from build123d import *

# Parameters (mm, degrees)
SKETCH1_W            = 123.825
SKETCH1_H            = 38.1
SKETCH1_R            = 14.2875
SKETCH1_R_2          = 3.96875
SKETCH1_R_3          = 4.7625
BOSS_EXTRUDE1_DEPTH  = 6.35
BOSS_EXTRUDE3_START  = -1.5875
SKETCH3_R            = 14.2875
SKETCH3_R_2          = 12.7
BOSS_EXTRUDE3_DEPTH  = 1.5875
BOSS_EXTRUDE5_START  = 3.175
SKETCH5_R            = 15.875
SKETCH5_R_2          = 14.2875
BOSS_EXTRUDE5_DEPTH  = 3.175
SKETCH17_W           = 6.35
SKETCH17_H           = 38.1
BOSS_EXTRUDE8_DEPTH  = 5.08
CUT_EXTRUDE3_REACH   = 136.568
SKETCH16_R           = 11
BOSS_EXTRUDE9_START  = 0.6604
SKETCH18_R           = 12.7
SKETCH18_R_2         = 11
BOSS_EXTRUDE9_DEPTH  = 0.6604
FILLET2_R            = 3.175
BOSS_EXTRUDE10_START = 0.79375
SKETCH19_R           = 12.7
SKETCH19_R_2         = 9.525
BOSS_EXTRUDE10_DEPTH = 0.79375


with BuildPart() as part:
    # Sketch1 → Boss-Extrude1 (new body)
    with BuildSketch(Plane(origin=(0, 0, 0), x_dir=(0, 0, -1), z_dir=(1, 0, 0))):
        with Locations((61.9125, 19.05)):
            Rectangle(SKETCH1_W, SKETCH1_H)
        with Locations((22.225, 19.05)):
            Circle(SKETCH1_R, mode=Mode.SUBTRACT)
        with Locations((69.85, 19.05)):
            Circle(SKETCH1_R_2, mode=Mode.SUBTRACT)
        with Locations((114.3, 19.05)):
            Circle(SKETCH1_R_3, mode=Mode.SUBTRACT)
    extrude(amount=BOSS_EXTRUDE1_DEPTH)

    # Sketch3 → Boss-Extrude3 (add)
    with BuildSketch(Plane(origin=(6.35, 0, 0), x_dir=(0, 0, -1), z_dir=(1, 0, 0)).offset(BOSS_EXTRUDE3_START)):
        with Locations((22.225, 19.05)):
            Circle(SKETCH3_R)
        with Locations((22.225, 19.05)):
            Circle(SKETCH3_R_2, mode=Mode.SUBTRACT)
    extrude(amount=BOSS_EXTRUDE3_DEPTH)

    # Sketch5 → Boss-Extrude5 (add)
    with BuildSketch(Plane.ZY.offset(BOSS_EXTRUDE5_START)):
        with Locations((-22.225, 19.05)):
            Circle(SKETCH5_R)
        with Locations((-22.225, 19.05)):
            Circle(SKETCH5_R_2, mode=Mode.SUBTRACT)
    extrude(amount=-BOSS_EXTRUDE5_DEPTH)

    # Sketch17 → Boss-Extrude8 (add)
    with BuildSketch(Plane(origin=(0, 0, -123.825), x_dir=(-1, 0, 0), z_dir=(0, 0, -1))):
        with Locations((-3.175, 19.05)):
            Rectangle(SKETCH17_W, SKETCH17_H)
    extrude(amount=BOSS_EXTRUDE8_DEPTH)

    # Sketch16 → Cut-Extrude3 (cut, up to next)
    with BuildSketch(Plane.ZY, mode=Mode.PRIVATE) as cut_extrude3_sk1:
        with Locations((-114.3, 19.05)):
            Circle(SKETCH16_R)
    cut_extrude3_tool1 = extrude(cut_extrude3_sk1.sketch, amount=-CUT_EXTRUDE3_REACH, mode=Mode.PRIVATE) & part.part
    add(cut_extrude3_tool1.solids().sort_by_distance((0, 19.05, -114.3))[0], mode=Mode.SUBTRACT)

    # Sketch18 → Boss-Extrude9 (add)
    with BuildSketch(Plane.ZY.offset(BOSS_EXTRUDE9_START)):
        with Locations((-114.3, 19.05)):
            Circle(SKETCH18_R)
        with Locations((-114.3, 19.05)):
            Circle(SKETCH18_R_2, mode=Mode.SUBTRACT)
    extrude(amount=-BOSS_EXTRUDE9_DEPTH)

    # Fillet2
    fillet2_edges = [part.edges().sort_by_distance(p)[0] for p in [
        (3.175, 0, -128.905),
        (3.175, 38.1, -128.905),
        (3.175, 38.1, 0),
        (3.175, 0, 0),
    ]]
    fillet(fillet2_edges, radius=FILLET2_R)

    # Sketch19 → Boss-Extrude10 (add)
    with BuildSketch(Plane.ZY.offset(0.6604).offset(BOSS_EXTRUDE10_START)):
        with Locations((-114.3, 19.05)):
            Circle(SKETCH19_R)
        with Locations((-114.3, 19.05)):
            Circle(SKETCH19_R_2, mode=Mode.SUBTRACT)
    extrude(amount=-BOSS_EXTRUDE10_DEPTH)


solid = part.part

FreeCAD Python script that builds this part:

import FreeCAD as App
import Part
import Sketcher

V = App.Vector
Q = App.Units.Quantity


def edges_at(feature, points):
    """Names of the edges that pass closest to the given points."""
    edges = feature.Shape.Edges
    near = lambda p: min(range(len(edges)), key=lambda i: edges[i].distToShape(Part.Vertex(*p))[0])
    return sorted({f"Edge{near(p) + 1}" for p in points})

doc = App.newDocument("Part")
params = doc.addObject("Spreadsheet::Sheet", "Params")
for row, (alias, value) in enumerate([
    ("sketch1_diameter", "1.125 in"),
    ("sketch1_diameter2", "0.3125 in"),
    ("sketch1_diameter3", "0.375 in"),
    ("sketch1_width", "1.5 in"),
    ("sketch1_height", "4.875 in"),
    ("pad1_length", "0.25 in"),
    ("sketch2_diameter", "1 in"),
    ("sketch2_diameter2", "1.125 in"),
    ("pad2_length", "0.0625 in"),
    ("sketch3_diameter", "1.25 in"),
    ("sketch3_diameter2", "1.125 in"),
    ("pad3_length", "0.125 in"),
    ("sketch4_height", "1.5 in"),
    ("sketch4_width", "0.25 in"),
    ("pad4_length", "0.2 in"),
    ("pocket1_length", "0.25 in"),
    ("sketch6_diameter", "1 in"),
    ("pad5_length", "0.026 in"),
    ("fillet_radius", "0.125 in"),
    ("sketch7_diameter", "1 in"),
    ("sketch7_diameter2", "0.75 in"),
    ("pad6_length", "0.03125 in"),
], start=1):
    params.set(f"A{row}", alias)
    params.set(f"B{row}", "=" + value)
    params.setAlias(f"B{row}", alias)

body = doc.addObject("PartDesign::Body", "Body")

sketch1 = doc.addObject("Sketcher::SketchObject", "Sketch")
body.addObject(sketch1)
sketch1.AttachmentSupport = (doc.YZ_Plane, [""])
sketch1.MapMode = "FlatFace"
sketch1.addGeometry([
    Part.LineSegment(V(38.1, 0, 0), V(0, 0, 0)),
    Part.LineSegment(V(0, 0, 0), V(0, -123.825, 0)),
    Part.LineSegment(V(0, -123.825, 0), V(38.1, -123.825, 0)),
    Part.LineSegment(V(38.1, -123.825, 0), V(38.1, 0, 0)),
    Part.Circle(V(19.05, -22.225, 0), V(0, 0, 1), 14.2875),
    Part.Circle(V(19.05, -69.85, 0), V(0, 0, 1), 3.96875),
    Part.Circle(V(19.05, -114.3, 0), V(0, 0, 1), 4.7625),
], False)
sketch1.addConstraint([
    Sketcher.Constraint("Coincident", 0, 2, 1, 1),
    Sketcher.Constraint("Coincident", 1, 2, 2, 1),
    Sketcher.Constraint("Coincident", 2, 2, 3, 1),
    Sketcher.Constraint("Coincident", 3, 2, 0, 1),
    Sketcher.Constraint("Horizontal", 0),
    Sketcher.Constraint("Vertical", 1),
    Sketcher.Constraint("Horizontal", 2),
    Sketcher.Constraint("Vertical", 3),
    Sketcher.Constraint("Coincident", 0, 2, -1, 1),
    Sketcher.Constraint("Vertical", 4, 3, 5, 3),
    Sketcher.Constraint("Vertical", 5, 3, 6, 3),
    Sketcher.Constraint("Diameter", 4, Q("1.125 in")),
    Sketcher.Constraint("Diameter", 5, Q("0.3125 in")),
    Sketcher.Constraint("Diameter", 6, Q("0.375 in")),
    Sketcher.Constraint("DistanceX", 0, 2, 0, 1, Q("1.5 in")),
    Sketcher.Constraint("DistanceY", 1, 2, 4, 3, Q("4 in")),
    Sketcher.Constraint("DistanceY", 6, 3, -1, 1, Q("4.5 in")),
    Sketcher.Constraint("DistanceY", 1, 2, 1, 1, Q("4.875 in")),
    Sketcher.Constraint("DistanceX", -1, 1, 4, 3, Q("0.75 in")),
    Sketcher.Constraint("DistanceY", 5, 3, -1, 1, Q("2.75 in")),
])
sketch1.setExpression("Constraints[11]", "Params.sketch1_diameter")
sketch1.setExpression("Constraints[12]", "Params.sketch1_diameter2")
sketch1.setExpression("Constraints[13]", "Params.sketch1_diameter3")
sketch1.setExpression("Constraints[14]", "Params.sketch1_width")
sketch1.setExpression("Constraints[17]", "Params.sketch1_height")
pad1 = doc.addObject("PartDesign::Pad", "Pad")
body.addObject(pad1)
pad1.Profile = sketch1
pad1.setExpression("Length", "Params.pad1_length")

sketch2 = doc.addObject("Sketcher::SketchObject", "Sketch001")
body.addObject(sketch2)
sketch2.AttachmentSupport = (doc.YZ_Plane, [""])
sketch2.MapMode = "FlatFace"
sketch2.AttachmentOffset = App.Placement(V(0, 0, 0.1875 * 25.4), App.Rotation())
sketch2.addGeometry([
    Part.Circle(V(19.05, -22.225, 0), V(0, 0, 1), 14.2875),
    Part.Circle(V(19.05, -22.225, 0), V(0, 0, 1), 12.7),
], False)
sketch2.addConstraint([
    Sketcher.Constraint("Coincident", 1, 3, 0, 3),
    Sketcher.Constraint("Diameter", 1, Q("1 in")),
    Sketcher.Constraint("Diameter", 0, Q("1.125 in")),
    Sketcher.Constraint("DistanceX", -1, 1, 0, 3, Q("0.75 in")),
    Sketcher.Constraint("DistanceY", 0, 3, -1, 1, Q("0.875 in")),
])
sketch2.setExpression("Constraints[1]", "Params.sketch2_diameter")
sketch2.setExpression("Constraints[2]", "Params.sketch2_diameter2")
pad2 = doc.addObject("PartDesign::Pad", "Pad001")
body.addObject(pad2)
pad2.Profile = sketch2
pad2.setExpression("Length", "Params.pad2_length")

sketch3 = doc.addObject("Sketcher::SketchObject", "Sketch002")
body.addObject(sketch3)
sketch3.AttachmentSupport = (doc.YZ_Plane, [""])
sketch3.MapMode = "FlatFace"
sketch3.AttachmentOffset = App.Placement(V(0, 0, -0.125 * 25.4), App.Rotation())
sketch3.addGeometry([
    Part.Circle(V(19.05, -22.225, 0), V(0, 0, 1), 15.875),
    Part.Circle(V(19.05, -22.225, 0), V(0, 0, 1), 14.2875),
], False)
sketch3.addConstraint([
    Sketcher.Constraint("Coincident", 1, 3, 0, 3),
    Sketcher.Constraint("Diameter", 0, Q("1.25 in")),
    Sketcher.Constraint("Diameter", 1, Q("1.125 in")),
    Sketcher.Constraint("DistanceX", -1, 1, 0, 3, Q("0.75 in")),
    Sketcher.Constraint("DistanceY", 0, 3, -1, 1, Q("0.875 in")),
])
sketch3.setExpression("Constraints[1]", "Params.sketch3_diameter")
sketch3.setExpression("Constraints[2]", "Params.sketch3_diameter2")
pad3 = doc.addObject("PartDesign::Pad", "Pad002")
body.addObject(pad3)
pad3.Profile = sketch3
pad3.setExpression("Length", "Params.pad3_length")

sketch4 = doc.addObject("Sketcher::SketchObject", "Sketch003")
body.addObject(sketch4)
sketch4.AttachmentSupport = (doc.XY_Plane, [""])
sketch4.MapMode = "FlatFace"
sketch4.AttachmentOffset = App.Placement(V(0, 0, -4.875 * 25.4), App.Rotation())
sketch4.addGeometry([
    Part.LineSegment(V(6.35, 38.1, 0), V(6.35, 0, 0)),
    Part.LineSegment(V(6.35, 0, 0), V(0, 0, 0)),
    Part.LineSegment(V(0, 0, 0), V(0, 38.1, 0)),
    Part.LineSegment(V(0, 38.1, 0), V(6.35, 38.1, 0)),
], False)
sketch4.addConstraint([
    Sketcher.Constraint("Coincident", 0, 2, 1, 1),
    Sketcher.Constraint("Coincident", 1, 2, 2, 1),
    Sketcher.Constraint("Coincident", 2, 2, 3, 1),
    Sketcher.Constraint("Coincident", 3, 2, 0, 1),
    Sketcher.Constraint("Vertical", 0),
    Sketcher.Constraint("Horizontal", 1),
    Sketcher.Constraint("Vertical", 2),
    Sketcher.Constraint("Horizontal", 3),
    Sketcher.Constraint("Coincident", 1, 2, -1, 1),
    Sketcher.Constraint("DistanceY", 0, 2, 0, 1, Q("1.5 in")),
    Sketcher.Constraint("DistanceX", 1, 2, 1, 1, Q("0.25 in")),
])
sketch4.setExpression("Constraints[9]", "Params.sketch4_height")
sketch4.setExpression("Constraints[10]", "Params.sketch4_width")
pad4 = doc.addObject("PartDesign::Pad", "Pad003")
body.addObject(pad4)
pad4.Profile = sketch4
pad4.setExpression("Length", "Params.pad4_length")
pad4.Reversed = True

sketch5 = doc.addObject("Sketcher::SketchObject", "Sketch004")
body.addObject(sketch5)
sketch5.AttachmentSupport = (doc.YZ_Plane, [""])
sketch5.MapMode = "FlatFace"
sketch5.addGeometry(Part.Circle(V(19.05, -114.3, 0), V(0, 0, 1), 11), False)
sketch5.addConstraint([
    Sketcher.Constraint("DistanceY", 0, 3, -1, 1, Q("4.5 in")),
    Sketcher.Constraint("Diameter", 0, 22.0),
    Sketcher.Constraint("DistanceX", -1, 1, 0, 3, Q("0.75 in")),
])
pocket1 = doc.addObject("PartDesign::Pocket", "Pocket")
body.addObject(pocket1)
pocket1.Profile = sketch5
pocket1.setExpression("Length", "Params.pocket1_length")
pocket1.Reversed = True

sketch6 = doc.addObject("Sketcher::SketchObject", "Sketch005")
body.addObject(sketch6)
sketch6.AttachmentSupport = (doc.YZ_Plane, [""])
sketch6.MapMode = "FlatFace"
sketch6.AttachmentOffset = App.Placement(V(0, 0, -0.026 * 25.4), App.Rotation())
sketch6.addGeometry([
    Part.Circle(V(19.05, -114.3, 0), V(0, 0, 1), 12.7),
    Part.Circle(V(19.05, -114.3, 0), V(0, 0, 1), 11),
], False)
sketch6.addConstraint([
    Sketcher.Constraint("Coincident", 1, 3, 0, 3),
    Sketcher.Constraint("Diameter", 0, Q("1 in")),
    Sketcher.Constraint("DistanceY", 0, 3, -1, 1, Q("4.5 in")),
    Sketcher.Constraint("Diameter", 1, 22.0),
    Sketcher.Constraint("DistanceX", -1, 1, 0, 3, Q("0.75 in")),
])
sketch6.setExpression("Constraints[1]", "Params.sketch6_diameter")
pad5 = doc.addObject("PartDesign::Pad", "Pad004")
body.addObject(pad5)
pad5.Profile = sketch6
pad5.setExpression("Length", "Params.pad5_length")
doc.recompute()

fillet = doc.addObject("PartDesign::Fillet", "Fillet")
body.addObject(fillet)
fillet.Base = (pad5, edges_at(pad5, [
    (3.175, 0, -128.905),
    (3.175, 38.1, -128.905),
    (3.175, 38.1, 0),
    (3.175, 0, 0),
]))
fillet.setExpression("Radius", "Params.fillet_radius")

sketch7 = doc.addObject("Sketcher::SketchObject", "Sketch006")
body.addObject(sketch7)
sketch7.AttachmentSupport = (doc.YZ_Plane, [""])
sketch7.MapMode = "FlatFace"
sketch7.AttachmentOffset = App.Placement(V(0, 0, -1.45415), App.Rotation())
sketch7.addGeometry([
    Part.Circle(V(19.05, -114.3, 0), V(0, 0, 1), 12.7),
    Part.Circle(V(19.05, -114.3, 0), V(0, 0, 1), 9.525),
], False)
sketch7.addConstraint([
    Sketcher.Constraint("Coincident", 1, 3, 0, 3),
    Sketcher.Constraint("Diameter", 0, Q("1 in")),
    Sketcher.Constraint("Diameter", 1, Q("0.75 in")),
    Sketcher.Constraint("DistanceY", 0, 3, -1, 1, Q("4.5 in")),
    Sketcher.Constraint("DistanceX", -1, 1, 0, 3, Q("0.75 in")),
])
sketch7.setExpression("Constraints[1]", "Params.sketch7_diameter")
sketch7.setExpression("Constraints[2]", "Params.sketch7_diameter2")
pad6 = doc.addObject("PartDesign::Pad", "Pad005")
body.addObject(pad6)
pad6.Profile = sketch7
pad6.setExpression("Length", "Params.pad6_length")

doc.recompute()
